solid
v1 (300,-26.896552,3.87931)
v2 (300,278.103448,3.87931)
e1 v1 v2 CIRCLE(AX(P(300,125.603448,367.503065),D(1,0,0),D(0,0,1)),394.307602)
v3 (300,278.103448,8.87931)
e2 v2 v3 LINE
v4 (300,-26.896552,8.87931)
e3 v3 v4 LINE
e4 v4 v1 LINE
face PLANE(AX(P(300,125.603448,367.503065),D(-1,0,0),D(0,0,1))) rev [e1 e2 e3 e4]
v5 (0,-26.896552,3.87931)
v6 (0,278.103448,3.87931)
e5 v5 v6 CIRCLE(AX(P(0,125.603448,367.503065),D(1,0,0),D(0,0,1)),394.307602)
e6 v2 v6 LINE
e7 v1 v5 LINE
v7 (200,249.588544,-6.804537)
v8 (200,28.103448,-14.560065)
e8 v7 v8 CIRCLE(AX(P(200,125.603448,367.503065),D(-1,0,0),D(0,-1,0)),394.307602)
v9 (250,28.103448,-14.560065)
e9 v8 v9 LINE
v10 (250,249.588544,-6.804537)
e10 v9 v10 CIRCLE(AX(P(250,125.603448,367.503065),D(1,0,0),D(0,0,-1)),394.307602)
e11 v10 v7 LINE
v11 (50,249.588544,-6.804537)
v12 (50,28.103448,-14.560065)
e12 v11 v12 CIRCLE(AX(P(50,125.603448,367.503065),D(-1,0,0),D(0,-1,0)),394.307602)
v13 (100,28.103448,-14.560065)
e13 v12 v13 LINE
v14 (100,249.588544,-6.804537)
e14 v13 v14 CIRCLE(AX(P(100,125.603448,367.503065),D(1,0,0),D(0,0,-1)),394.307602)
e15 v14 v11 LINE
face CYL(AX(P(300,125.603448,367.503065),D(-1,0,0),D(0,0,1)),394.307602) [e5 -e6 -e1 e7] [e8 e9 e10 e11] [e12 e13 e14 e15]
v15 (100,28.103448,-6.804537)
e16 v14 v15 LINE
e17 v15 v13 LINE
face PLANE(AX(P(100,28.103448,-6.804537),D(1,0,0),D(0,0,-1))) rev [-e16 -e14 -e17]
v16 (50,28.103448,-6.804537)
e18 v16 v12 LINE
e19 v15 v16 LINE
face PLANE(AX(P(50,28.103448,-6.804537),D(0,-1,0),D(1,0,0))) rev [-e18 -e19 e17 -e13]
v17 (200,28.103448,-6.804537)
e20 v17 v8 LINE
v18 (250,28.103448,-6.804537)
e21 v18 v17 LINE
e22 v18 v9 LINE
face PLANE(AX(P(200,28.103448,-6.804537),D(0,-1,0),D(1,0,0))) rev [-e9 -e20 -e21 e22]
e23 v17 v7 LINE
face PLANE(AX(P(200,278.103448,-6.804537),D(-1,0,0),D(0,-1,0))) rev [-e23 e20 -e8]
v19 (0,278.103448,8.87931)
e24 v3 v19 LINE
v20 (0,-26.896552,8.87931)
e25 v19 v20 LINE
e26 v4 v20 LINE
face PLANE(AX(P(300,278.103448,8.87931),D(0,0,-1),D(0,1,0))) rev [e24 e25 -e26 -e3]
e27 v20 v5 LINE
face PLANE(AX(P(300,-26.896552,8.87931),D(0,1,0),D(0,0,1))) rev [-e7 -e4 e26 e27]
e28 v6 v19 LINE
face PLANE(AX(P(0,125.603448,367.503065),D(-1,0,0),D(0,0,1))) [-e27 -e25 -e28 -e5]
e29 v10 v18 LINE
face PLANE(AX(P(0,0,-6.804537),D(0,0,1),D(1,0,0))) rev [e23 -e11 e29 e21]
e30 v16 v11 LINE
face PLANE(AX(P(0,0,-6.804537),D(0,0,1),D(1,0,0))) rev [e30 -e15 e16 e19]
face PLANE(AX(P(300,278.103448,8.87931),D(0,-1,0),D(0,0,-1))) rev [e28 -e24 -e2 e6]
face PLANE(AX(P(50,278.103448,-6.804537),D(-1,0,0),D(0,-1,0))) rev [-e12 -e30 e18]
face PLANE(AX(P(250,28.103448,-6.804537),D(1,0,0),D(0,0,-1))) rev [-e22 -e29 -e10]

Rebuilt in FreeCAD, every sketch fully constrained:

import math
import FreeCAD as App
import Part
import Sketcher
Q = App.Units.Quantity

doc = App.newDocument("Part")
body = doc.addObject("PartDesign::Body", "Body")

# Sketch on YZ plane
sketch1 = doc.addObject("Sketcher::SketchObject", "Sketch")
body.addObject(sketch1)
sketch1.AttachmentSupport = (doc.YZ_Plane, [""])
sketch1.MapMode = "FlatFace"
sketch1.addGeometry([
    Part.LineSegment(App.Vector(278.103448, 8.87931, 0), App.Vector(-26.896552, 8.87931, 0)),
    Part.LineSegment(App.Vector(-26.896552, 8.87931, 0), App.Vector(-26.896552, 3.87931, 0)),
    Part.ArcOfCircle(Part.Circle(App.Vector(125.603448, 367.503065, 0), App.Vector(0, 0, 1), 394.307602), math.radians(-112.752667), math.radians(-67.247333)),
    Part.LineSegment(App.Vector(278.103448, 3.87931, 0), App.Vector(278.103448, 8.87931, 0)),
], False)
sketch1.addConstraint([
    Sketcher.Constraint("Coincident", 0, 2, 1, 1),
    Sketcher.Constraint("Coincident", 1, 2, 2, 1),
    Sketcher.Constraint("Coincident", 2, 2, 3, 1),
    Sketcher.Constraint("Coincident", 3, 2, 0, 1),
    Sketcher.Constraint("Horizontal", 0),
    Sketcher.Constraint("Vertical", 1),
    Sketcher.Constraint("Vertical", 3),
    Sketcher.Constraint("Horizontal", 1, 2, 2, 2),
    Sketcher.Constraint("DistanceX", 0, 2, 0, 1, Q("305 mm")),
    Sketcher.Constraint("DistanceY", 1, 2, 1, 1, Q("5 mm")),
    Sketcher.Constraint("Radius", 2, Q("394.307602 mm")),
    Sketcher.Constraint("DistanceX", -1, 1, 2, 3, Q("125.603448 mm")),
    Sketcher.Constraint("DistanceY", -1, 1, 0, 2, Q("8.87931 mm")),
])
pad1 = doc.addObject("PartDesign::Pad", "Pad")
body.addObject(pad1)
pad1.Profile = sketch1
pad1.Length = 300

# Sketch on XY plane
sketch2 = doc.addObject("Sketcher::SketchObject", "Sketch001")
body.addObject(sketch2)
sketch2.AttachmentSupport = (doc.XY_Plane, [""])
sketch2.MapMode = "FlatFace"
sketch2.AttachmentOffset = App.Placement(App.Vector(0, 0, -26.804537), App.Rotation())
sketch2.addGeometry([
    Part.LineSegment(App.Vector(250, 278.103448, 0), App.Vector(250, 28.103448, 0)),  # 0
    Part.LineSegment(App.Vector(250, 28.103448, 0), App.Vector(200, 28.103448, 0)),  # 1
    Part.LineSegment(App.Vector(200, 28.103448, 0), App.Vector(200, 278.103448, 0)),  # 2
    Part.LineSegment(App.Vector(200, 278.103448, 0), App.Vector(250, 278.103448, 0)),  # 3
    Part.LineSegment(App.Vector(100, 278.103448, 0), App.Vector(100, 28.103448, 0)),  # 4
    Part.LineSegment(App.Vector(100, 28.103448, 0), App.Vector(50, 28.103448, 0)),  # 5
    Part.LineSegment(App.Vector(50, 28.103448, 0), App.Vector(50, 278.103448, 0)),  # 6
    Part.LineSegment(App.Vector(50, 278.103448, 0), App.Vector(100, 278.103448, 0)),  # 7
], False)
sketch2.addConstraint([
    Sketcher.Constraint("Coincident", 0, 2, 1, 1),
    Sketcher.Constraint("Coincident", 1, 2, 2, 1),
    Sketcher.Constraint("Coincident", 2, 2, 3, 1),
    Sketcher.Constraint("Coincident", 3, 2, 0, 1),
    Sketcher.Constraint("Coincident", 4, 2, 5, 1),
    Sketcher.Constraint("Coincident", 5, 2, 6, 1),
    Sketcher.Constraint("Coincident", 6, 2, 7, 1),
    Sketcher.Constraint("Coincident", 7, 2, 4, 1),
    Sketcher.Constraint("Vertical", 0),
    Sketcher.Constraint("Horizontal", 1),
    Sketcher.Constraint("Vertical", 2),
    Sketcher.Constraint("Horizontal", 3),
    Sketcher.Constraint("Vertical", 4),
    Sketcher.Constraint("Horizontal", 5),
    Sketcher.Constraint("Vertical", 6),
    Sketcher.Constraint("Horizontal", 7),
    Sketcher.Constraint("Horizontal", 1, 2, 4, 2),
    Sketcher.Constraint("Horizontal", 3, 2, 6, 2),
    Sketcher.Constraint("Equal", 3, 5),
    Sketcher.Constraint("DistanceX", 1, 2, 1, 1, Q("50 mm")),
    Sketcher.Constraint("DistanceY", 0, 2, 0, 1, Q("250 mm")),
    Sketcher.Constraint("DistanceX", -1, 1, 0, 2, Q("250 mm")),
    Sketcher.Constraint("DistanceX", -1, 1, 4, 2, Q("100 mm")),
    Sketcher.Constraint("DistanceY", -1, 1, 0, 2, Q("28.103448 mm")),
])
pocket1 = doc.addObject("PartDesign::Pocket", "Pocket")
body.addObject(pocket1)
pocket1.Profile = sketch2
pocket1.Length = 20
pocket1.Reversed = True

doc.recompute()
